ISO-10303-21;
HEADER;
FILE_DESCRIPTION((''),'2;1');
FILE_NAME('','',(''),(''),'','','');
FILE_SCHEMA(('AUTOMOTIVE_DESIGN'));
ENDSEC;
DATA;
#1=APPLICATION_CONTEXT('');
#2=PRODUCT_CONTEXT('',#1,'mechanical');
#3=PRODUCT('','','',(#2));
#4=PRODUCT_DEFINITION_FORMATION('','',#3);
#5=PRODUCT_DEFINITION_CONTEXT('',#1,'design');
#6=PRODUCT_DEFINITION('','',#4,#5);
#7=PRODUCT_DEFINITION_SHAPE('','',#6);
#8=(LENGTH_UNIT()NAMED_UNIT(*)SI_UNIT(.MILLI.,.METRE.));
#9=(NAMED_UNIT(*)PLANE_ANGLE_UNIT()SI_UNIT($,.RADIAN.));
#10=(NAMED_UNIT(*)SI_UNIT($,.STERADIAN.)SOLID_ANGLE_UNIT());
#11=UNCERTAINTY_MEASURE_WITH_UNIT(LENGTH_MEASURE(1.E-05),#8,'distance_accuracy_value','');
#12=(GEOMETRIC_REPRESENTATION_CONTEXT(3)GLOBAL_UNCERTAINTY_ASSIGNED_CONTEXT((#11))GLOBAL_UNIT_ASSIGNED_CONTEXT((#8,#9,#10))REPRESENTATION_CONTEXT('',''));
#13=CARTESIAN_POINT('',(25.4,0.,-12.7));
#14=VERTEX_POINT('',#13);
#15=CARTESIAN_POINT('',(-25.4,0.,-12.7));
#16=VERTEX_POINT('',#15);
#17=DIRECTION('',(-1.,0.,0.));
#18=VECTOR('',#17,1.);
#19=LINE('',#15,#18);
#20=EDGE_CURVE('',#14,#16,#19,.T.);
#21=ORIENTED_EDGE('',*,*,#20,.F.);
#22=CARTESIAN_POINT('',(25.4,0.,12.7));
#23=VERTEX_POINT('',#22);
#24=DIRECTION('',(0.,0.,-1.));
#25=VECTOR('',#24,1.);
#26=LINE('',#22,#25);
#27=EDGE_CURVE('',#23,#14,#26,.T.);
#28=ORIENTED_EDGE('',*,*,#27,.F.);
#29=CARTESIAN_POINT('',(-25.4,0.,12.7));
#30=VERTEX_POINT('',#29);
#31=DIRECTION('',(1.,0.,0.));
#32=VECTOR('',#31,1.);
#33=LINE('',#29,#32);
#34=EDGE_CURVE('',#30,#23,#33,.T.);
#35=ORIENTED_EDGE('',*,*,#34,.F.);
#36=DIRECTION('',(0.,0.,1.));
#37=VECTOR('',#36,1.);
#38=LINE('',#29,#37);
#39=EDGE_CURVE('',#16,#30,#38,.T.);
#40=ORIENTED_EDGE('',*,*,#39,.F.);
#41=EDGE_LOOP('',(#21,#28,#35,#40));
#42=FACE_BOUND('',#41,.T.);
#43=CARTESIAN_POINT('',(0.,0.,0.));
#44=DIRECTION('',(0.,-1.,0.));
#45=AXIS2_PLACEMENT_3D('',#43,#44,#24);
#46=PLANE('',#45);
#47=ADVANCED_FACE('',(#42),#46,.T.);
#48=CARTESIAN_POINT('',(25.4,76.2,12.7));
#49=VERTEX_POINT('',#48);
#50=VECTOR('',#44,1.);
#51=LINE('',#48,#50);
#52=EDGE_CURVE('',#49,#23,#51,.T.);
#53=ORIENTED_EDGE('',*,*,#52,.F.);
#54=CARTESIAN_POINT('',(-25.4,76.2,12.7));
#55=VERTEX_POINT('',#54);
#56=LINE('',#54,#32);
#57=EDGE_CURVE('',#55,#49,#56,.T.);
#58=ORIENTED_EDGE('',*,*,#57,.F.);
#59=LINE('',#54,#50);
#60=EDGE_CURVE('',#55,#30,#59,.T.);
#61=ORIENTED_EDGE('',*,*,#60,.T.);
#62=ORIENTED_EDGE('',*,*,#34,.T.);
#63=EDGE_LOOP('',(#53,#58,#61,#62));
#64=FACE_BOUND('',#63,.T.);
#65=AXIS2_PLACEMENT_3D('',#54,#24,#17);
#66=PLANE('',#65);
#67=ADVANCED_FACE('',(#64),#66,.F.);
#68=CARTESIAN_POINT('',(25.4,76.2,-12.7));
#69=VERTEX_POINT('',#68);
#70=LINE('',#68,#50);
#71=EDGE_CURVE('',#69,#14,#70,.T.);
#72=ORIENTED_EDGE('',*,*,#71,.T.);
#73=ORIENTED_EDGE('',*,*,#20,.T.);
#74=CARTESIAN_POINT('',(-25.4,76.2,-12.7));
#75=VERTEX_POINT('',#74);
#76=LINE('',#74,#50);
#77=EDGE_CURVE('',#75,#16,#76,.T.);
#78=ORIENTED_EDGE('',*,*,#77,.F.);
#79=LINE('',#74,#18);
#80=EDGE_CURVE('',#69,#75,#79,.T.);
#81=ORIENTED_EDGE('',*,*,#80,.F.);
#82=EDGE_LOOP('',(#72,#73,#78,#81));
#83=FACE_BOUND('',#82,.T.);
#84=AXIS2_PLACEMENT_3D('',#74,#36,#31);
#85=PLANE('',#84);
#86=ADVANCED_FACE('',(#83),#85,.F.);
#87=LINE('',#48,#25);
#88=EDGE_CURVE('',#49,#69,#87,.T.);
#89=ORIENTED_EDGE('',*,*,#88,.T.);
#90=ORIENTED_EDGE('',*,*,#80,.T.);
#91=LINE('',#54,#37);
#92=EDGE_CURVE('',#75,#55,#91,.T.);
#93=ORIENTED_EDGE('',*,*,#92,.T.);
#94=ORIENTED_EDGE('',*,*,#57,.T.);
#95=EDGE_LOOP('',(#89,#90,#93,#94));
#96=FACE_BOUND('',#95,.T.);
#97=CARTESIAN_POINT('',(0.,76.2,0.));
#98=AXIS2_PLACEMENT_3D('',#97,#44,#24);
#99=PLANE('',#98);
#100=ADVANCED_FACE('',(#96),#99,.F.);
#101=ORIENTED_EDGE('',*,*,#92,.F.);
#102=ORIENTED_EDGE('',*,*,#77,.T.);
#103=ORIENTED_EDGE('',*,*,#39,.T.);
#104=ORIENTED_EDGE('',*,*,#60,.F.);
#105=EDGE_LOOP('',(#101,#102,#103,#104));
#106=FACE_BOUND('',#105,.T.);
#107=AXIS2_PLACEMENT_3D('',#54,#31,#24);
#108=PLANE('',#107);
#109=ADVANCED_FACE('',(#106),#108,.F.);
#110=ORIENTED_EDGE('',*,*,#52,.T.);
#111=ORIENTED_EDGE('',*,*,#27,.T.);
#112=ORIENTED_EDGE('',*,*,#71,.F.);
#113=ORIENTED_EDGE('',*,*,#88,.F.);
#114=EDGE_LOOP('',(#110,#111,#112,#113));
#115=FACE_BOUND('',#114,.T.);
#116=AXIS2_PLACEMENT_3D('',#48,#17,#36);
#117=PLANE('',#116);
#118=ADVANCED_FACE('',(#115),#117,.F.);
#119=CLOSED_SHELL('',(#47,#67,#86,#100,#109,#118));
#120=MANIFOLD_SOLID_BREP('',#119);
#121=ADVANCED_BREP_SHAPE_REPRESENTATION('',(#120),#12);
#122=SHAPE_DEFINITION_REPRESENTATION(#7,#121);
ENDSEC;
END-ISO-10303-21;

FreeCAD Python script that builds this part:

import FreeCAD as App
import Part
import Sketcher
Q = App.Units.Quantity

doc = App.newDocument("Part")
params = doc.addObject("Spreadsheet::Sheet", "Params")
for row, (alias, value) in enumerate([
    ("sketch1_width", "2 in"),
    ("sketch1_height", "1 in"),
    ("pad1_length", "3 in"),
], start=1):
    params.set(f"A{row}", alias)
    params.set(f"B{row}", "=" + value)
    params.setAlias(f"B{row}", alias)

body = doc.addObject("PartDesign::Body", "Body")

# Sketch on XZ plane
sketch1 = body.newObject("Sketcher::SketchObject", "Sketch")
sketch1.AttachmentSupport = (doc.getObject("XZ_Plane"), [""])
sketch1.MapMode = "FlatFace"
sketch1.addGeometry([
    Part.LineSegment(App.Vector(-25, -13, 0), App.Vector(-25, 13, 0)),
    Part.LineSegment(App.Vector(-25, 13, 0), App.Vector(25, 13, 0)),
    Part.LineSegment(App.Vector(25, 13, 0), App.Vector(25, -13, 0)),
    Part.LineSegment(App.Vector(25, -13, 0), App.Vector(-25, -13, 0)),
], False)
sketch1.addConstraint([
    Sketcher.Constraint("Coincident", 0, 2, 1, 1),
    Sketcher.Constraint("Coincident", 1, 2, 2, 1),
    Sketcher.Constraint("Coincident", 2, 2, 3, 1),
    Sketcher.Constraint("Coincident", 3, 2, 0, 1),
    Sketcher.Constraint("Vertical", 0),
    Sketcher.Constraint("Horizontal", 1),
    Sketcher.Constraint("Vertical", 2),
    Sketcher.Constraint("Horizontal", 3),
    Sketcher.Constraint("Symmetric", 0, 2, 2, 2, -1, 1),
    Sketcher.Constraint("DistanceX", 1, 1, 1, 2, Q("2 in")),
    Sketcher.Constraint("DistanceY", 0, 1, 0, 2, Q("1 in")),
])
sketch1.setExpression("Constraints[9]", "Params.sketch1_width")
sketch1.setExpression("Constraints[10]", "Params.sketch1_height")
pad1 = body.newObject("PartDesign::Pad", "Pad")
pad1.Profile = sketch1
pad1.setExpression("Length", "Params.pad1_length")
pad1.Reversed = True

doc.recompute()
